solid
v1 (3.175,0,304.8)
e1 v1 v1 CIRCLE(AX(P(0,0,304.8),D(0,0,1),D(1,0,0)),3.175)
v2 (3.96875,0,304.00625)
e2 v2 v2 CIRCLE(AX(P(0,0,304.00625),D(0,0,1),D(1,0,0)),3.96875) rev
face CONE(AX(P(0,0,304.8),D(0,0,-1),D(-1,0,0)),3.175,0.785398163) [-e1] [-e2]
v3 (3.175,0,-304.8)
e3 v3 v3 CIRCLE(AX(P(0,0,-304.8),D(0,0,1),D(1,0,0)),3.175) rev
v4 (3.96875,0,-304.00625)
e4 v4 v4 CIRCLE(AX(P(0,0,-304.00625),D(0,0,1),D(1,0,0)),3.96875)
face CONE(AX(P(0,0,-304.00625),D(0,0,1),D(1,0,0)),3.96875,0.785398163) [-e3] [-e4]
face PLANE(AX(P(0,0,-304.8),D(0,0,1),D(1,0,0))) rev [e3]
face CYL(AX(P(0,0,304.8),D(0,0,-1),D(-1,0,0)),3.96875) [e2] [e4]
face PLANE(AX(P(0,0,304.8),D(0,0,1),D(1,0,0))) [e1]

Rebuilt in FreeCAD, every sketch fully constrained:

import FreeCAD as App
import Part
import Sketcher
Q = App.Units.Quantity


def edges_at(feature, points):
    """Names of the edges that pass closest to the given points."""
    edges = feature.Shape.Edges
    near = lambda p: min(range(len(edges)), key=lambda i: edges[i].distToShape(Part.Vertex(*p))[0])
    return sorted({f"Edge{near(p) + 1}" for p in points})

doc = App.newDocument("Part")
body = doc.addObject("PartDesign::Body", "Body")

# Sketch on XY plane
sketch1 = body.newObject("Sketcher::SketchObject", "Sketch")
sketch1.AttachmentSupport = (doc.getObject("XY_Plane"), [""])
sketch1.MapMode = "FlatFace"
sketch1.addGeometry(Part.Circle(App.Vector(0, 0, 0), App.Vector(0, 0, 1), 4), False)
sketch1.addConstraint([
    Sketcher.Constraint("Coincident", 0, 3, -1, 1),
    Sketcher.Constraint("Diameter", 0, Q("0.3125 in")),
])
pad1 = body.newObject("PartDesign::Pad", "Pad")
pad1.Profile = sketch1
pad1.Length = Q("24 in")
pad1.Midplane = True
doc.recompute()

chamfer = body.newObject("PartDesign::Chamfer", "Chamfer")
chamfer.Base = (pad1, edges_at(pad1, [(-3.969, 0, -304.8), (-3.969, 0, 304.8)]))
chamfer.Size = Q("0.03125 in")

doc.recompute()
